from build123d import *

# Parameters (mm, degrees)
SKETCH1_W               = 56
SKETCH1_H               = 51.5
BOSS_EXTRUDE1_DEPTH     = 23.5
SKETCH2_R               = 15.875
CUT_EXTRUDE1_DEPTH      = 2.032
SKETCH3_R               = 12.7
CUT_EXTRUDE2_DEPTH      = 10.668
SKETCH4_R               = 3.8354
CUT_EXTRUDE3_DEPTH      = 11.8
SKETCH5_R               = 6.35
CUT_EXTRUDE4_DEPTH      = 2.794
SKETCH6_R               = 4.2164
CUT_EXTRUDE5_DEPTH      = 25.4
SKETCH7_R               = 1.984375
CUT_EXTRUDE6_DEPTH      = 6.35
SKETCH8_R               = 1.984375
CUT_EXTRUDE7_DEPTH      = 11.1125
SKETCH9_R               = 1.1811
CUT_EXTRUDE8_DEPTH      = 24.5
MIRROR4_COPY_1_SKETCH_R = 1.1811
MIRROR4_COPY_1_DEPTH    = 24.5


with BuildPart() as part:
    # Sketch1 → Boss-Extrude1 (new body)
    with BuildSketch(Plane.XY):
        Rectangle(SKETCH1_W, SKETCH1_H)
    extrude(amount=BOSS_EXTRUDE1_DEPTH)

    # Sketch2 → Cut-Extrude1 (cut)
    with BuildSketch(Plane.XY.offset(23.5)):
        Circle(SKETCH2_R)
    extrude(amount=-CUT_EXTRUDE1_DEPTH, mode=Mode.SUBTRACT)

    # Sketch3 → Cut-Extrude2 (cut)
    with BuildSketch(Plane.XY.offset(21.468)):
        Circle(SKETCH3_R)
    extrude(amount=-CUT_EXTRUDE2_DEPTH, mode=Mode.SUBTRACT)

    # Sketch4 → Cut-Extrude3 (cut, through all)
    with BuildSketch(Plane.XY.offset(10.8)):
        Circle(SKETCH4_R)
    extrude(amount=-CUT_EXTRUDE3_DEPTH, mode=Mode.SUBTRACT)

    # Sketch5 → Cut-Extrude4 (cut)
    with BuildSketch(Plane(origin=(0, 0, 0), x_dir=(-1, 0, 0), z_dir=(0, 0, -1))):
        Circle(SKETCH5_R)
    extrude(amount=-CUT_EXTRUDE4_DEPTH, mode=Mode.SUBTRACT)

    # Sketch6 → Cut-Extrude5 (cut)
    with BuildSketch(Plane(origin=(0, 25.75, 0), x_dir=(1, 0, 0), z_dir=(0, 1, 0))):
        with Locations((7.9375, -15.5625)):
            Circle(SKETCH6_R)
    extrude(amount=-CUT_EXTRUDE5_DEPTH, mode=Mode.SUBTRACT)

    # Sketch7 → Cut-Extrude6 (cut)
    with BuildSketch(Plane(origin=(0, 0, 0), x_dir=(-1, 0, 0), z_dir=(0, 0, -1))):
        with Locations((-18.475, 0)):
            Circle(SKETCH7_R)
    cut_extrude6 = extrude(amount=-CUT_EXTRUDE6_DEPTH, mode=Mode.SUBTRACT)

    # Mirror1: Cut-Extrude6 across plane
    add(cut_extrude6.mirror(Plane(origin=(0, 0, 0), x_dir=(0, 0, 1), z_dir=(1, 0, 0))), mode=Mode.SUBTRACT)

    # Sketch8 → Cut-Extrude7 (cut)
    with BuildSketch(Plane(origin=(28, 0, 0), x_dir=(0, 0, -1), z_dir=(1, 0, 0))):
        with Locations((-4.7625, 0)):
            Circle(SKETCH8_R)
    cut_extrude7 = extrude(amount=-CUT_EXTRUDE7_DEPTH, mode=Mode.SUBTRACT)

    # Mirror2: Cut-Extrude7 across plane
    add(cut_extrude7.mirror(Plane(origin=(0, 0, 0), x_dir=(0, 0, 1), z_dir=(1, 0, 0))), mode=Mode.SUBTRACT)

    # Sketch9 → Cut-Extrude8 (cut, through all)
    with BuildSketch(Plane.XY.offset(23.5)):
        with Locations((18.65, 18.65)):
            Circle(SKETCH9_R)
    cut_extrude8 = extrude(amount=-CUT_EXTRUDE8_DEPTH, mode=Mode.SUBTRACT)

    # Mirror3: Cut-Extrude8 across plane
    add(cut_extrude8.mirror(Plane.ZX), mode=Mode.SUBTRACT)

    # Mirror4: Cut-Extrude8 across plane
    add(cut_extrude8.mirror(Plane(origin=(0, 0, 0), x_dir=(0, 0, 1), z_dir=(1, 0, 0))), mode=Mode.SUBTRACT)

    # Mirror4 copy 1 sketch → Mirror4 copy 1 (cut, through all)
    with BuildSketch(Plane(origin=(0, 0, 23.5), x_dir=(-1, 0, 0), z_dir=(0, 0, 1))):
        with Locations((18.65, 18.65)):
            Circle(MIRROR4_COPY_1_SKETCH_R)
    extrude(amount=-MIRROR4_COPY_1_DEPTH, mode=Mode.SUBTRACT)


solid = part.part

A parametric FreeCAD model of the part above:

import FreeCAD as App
import Part
import Sketcher
from FreeCAD import Vector
Q = App.Units.Quantity

doc = App.newDocument("Part")
body = doc.addObject("PartDesign::Body", "Body")

# Sketch on XY plane
sketch1 = body.newObject("Sketcher::SketchObject", "Sketch")
sketch1.AttachmentSupport = (doc.getObject("XY_Plane"), [""])
sketch1.MapMode = "FlatFace"
sketch1.addGeometry([
    Part.LineSegment(Vector(-28, 26, 0), Vector(-28, -26, 0)),
    Part.LineSegment(Vector(-28, -26, 0), Vector(28, -26, 0)),
    Part.LineSegment(Vector(28, -26, 0), Vector(28, 26, 0)),
    Part.LineSegment(Vector(28, 26, 0), Vector(-28, 26, 0)),
], False)
sketch1.addConstraint([
    Sketcher.Constraint("Coincident", 0, 2, 1, 1),
    Sketcher.Constraint("Coincident", 1, 2, 2, 1),
    Sketcher.Constraint("Coincident", 2, 2, 3, 1),
    Sketcher.Constraint("Coincident", 3, 2, 0, 1),
    Sketcher.Constraint("Vertical", 0),
    Sketcher.Constraint("Horizontal", 1),
    Sketcher.Constraint("Vertical", 2),
    Sketcher.Constraint("Horizontal", 3),
    Sketcher.Constraint("Symmetric", 0, 2, 2, 2, -1, 1),
    Sketcher.Constraint("DistanceX", 1, 1, 1, 2, 56.0),
    Sketcher.Constraint("DistanceY", 0, 2, 0, 1, 51.5),
])
pad1 = body.newObject("PartDesign::Pad", "Pad")
pad1.Profile = sketch1
pad1.Length = 23.5

# Sketch on XY plane
sketch2 = body.newObject("Sketcher::SketchObject", "Sketch001")
sketch2.AttachmentSupport = (doc.getObject("XY_Plane"), [""])
sketch2.MapMode = "FlatFace"
sketch2.AttachmentOffset = App.Placement(Vector(0, 0, 23.5), App.Rotation())
sketch2.addGeometry(Part.Circle(Vector(0, 0, 0), Vector(0, 0, 1), 16), False)
sketch2.addConstraint([
    Sketcher.Constraint("Coincident", 0, 3, -1, 1),
    Sketcher.Constraint("Diameter", 0, Q("1.25 in")),
])
pocket1 = body.newObject("PartDesign::Pocket", "Pocket")
pocket1.Profile = sketch2
pocket1.Length = Q("0.08 in")

# Sketch on XY plane
sketch3 = body.newObject("Sketcher::SketchObject", "Sketch002")
sketch3.AttachmentSupport = (doc.getObject("XY_Plane"), [""])
sketch3.MapMode = "FlatFace"
sketch3.AttachmentOffset = App.Placement(Vector(0, 0, 21.468), App.Rotation())
sketch3.addGeometry(Part.Circle(Vector(0, 0, 0), Vector(0, 0, 1), 13), False)
sketch3.addConstraint([
    Sketcher.Constraint("Coincident", 0, 3, -1, 1),
    Sketcher.Constraint("Diameter", 0, Q("1 in")),
])
pocket2 = body.newObject("PartDesign::Pocket", "Pocket001")
pocket2.Profile = sketch3
pocket2.Length = Q("0.42 in")

# Sketch on XY plane
sketch4 = body.newObject("Sketcher::SketchObject", "Sketch003")
sketch4.AttachmentSupport = (doc.getObject("XY_Plane"), [""])
sketch4.MapMode = "FlatFace"
sketch4.AttachmentOffset = App.Placement(Vector(0, 0, 10.8), App.Rotation())
sketch4.addGeometry(Part.Circle(Vector(0, 0, 0), Vector(0, 0, 1), 3.8), False)
sketch4.addConstraint([
    Sketcher.Constraint("Coincident", 0, 3, -1, 1),
    Sketcher.Constraint("Diameter", 0, Q("0.302 in")),
])
pocket3 = body.newObject("PartDesign::Pocket", "Pocket002")
pocket3.Profile = sketch4
pocket3.Type = "ThroughAll"

# Sketch on XY plane
sketch5 = body.newObject("Sketcher::SketchObject", "Sketch004")
sketch5.AttachmentSupport = (doc.getObject("XY_Plane"), [""])
sketch5.MapMode = "FlatFace"
sketch5.addGeometry(Part.Circle(Vector(0, 0, 0), Vector(0, 0, 1), 6), False)
sketch5.addConstraint([
    Sketcher.Constraint("Coincident", 0, 3, -1, 1),
    Sketcher.Constraint("Diameter", 0, Q("0.5 in")),
])
pocket4 = body.newObject("PartDesign::Pocket", "Pocket003")
pocket4.Profile = sketch5
pocket4.Length = Q("0.11 in")
pocket4.Reversed = True

# Sketch on XZ plane
sketch6 = body.newObject("Sketcher::SketchObject", "Sketch005")
sketch6.AttachmentSupport = (doc.getObject("XZ_Plane"), [""])
sketch6.MapMode = "FlatFace"
sketch6.AttachmentOffset = App.Placement(Vector(0, 0, -25.75), App.Rotation())
sketch6.addGeometry(Part.Circle(Vector(7.9, 15.6, 0), Vector(0, 0, 1), 4.2), False)
sketch6.addConstraint([
    Sketcher.Constraint("Diameter", 0, Q("0.332 in")),
    Sketcher.Constraint("DistanceX", -1, 1, 0, 3, Q("0.3125 in")),
    Sketcher.Constraint("DistanceY", -1, 1, 0, 3, 15.5625),
])
pocket5 = body.newObject("PartDesign::Pocket", "Pocket004")
pocket5.Profile = sketch6
pocket5.Length = Q("1 in")
pocket5.Reversed = True

# Sketch on XY plane
sketch7 = body.newObject("Sketcher::SketchObject", "Sketch006")
sketch7.AttachmentSupport = (doc.getObject("XY_Plane"), [""])
sketch7.MapMode = "FlatFace"
sketch7.addGeometry(Part.Circle(Vector(18.5, 0, 0), Vector(0, 0, 1), 2), False)
sketch7.addConstraint([
    Sketcher.Constraint("PointOnObject", 0, 3, -1),
    Sketcher.Constraint("Diameter", 0, Q("0.15625 in")),
    Sketcher.Constraint("DistanceX", -1, 1, 0, 3, 18.475),
])
pocket6 = body.newObject("PartDesign::Pocket", "Pocket005")
pocket6.Profile = sketch7
pocket6.Length = Q("0.25 in")
pocket6.Reversed = True
doc.recompute()

mirrored = body.newObject("PartDesign::Mirrored", "Mirrored")
mirrored.Originals = [pocket6]
mirrored.MirrorPlane = (doc.getObject("YZ_Plane"), [""])
body.Tip = mirrored

# Sketch on YZ plane
sketch8 = body.newObject("Sketcher::SketchObject", "Sketch007")
sketch8.AttachmentSupport = (doc.getObject("YZ_Plane"), [""])
sketch8.MapMode = "FlatFace"
sketch8.AttachmentOffset = App.Placement(Vector(0, 0, 28), App.Rotation())
sketch8.addGeometry(Part.Circle(Vector(0, 4.8, 0), Vector(0, 0, 1), 2), False)
sketch8.addConstraint([
    Sketcher.Constraint("PointOnObject", 0, 3, -2),
    Sketcher.Constraint("Diameter", 0, Q("0.15625 in")),
    Sketcher.Constraint("DistanceY", -1, 1, 0, 3, Q("0.1875 in")),
])
pocket7 = body.newObject("PartDesign::Pocket", "Pocket006")
pocket7.Profile = sketch8
pocket7.Length = Q("0.4375 in")
doc.recompute()

mirrored2 = body.newObject("PartDesign::Mirrored", "Mirrored001")
mirrored2.Originals = [pocket7]
mirrored2.MirrorPlane = (doc.getObject("YZ_Plane"), [""])
body.Tip = mirrored2

# Sketch on XY plane
sketch9 = body.newObject("Sketcher::SketchObject", "Sketch008")
sketch9.AttachmentSupport = (doc.getObject("XY_Plane"), [""])
sketch9.MapMode = "FlatFace"
sketch9.AttachmentOffset = App.Placement(Vector(0, 0, 23.5), App.Rotation())
sketch9.addGeometry(Part.Circle(Vector(18.6, 18.6, 0), Vector(0, 0, 1), 1.2), False)
sketch9.addConstraint([
    Sketcher.Constraint("Diameter", 0, Q("0.093 in")),
    Sketcher.Constraint("DistanceX", -1, 1, 0, 3, 18.65),
    Sketcher.Constraint("DistanceY", -1, 1, 0, 3, 18.65),
])
pocket8 = body.newObject("PartDesign::Pocket", "Pocket007")
pocket8.Profile = sketch9
pocket8.Type = "ThroughAll"
doc.recompute()

mirrored3 = body.newObject("PartDesign::Mirrored", "Mirrored002")
mirrored3.Originals = [pocket8]
mirrored3.MirrorPlane = (doc.getObject("XZ_Plane"), [""])
body.Tip = mirrored3
doc.recompute()

mirrored4 = body.newObject("PartDesign::Mirrored", "Mirrored003")
mirrored4.Originals = [pocket8]
mirrored4.MirrorPlane = (doc.getObject("YZ_Plane"), [""])
body.Tip = mirrored4

# Sketch on XY plane
sketch10 = body.newObject("Sketcher::SketchObject", "Sketch009")
sketch10.AttachmentSupport = (doc.getObject("XY_Plane"), [""])
sketch10.MapMode = "FlatFace"
sketch10.AttachmentOffset = App.Placement(Vector(0, 0, 23.5), App.Rotation())
sketch10.addGeometry(Part.Circle(Vector(-18.6, -18.6, 0), Vector(0, 0, 1), 1.2), False)
sketch10.addConstraint([
    Sketcher.Constraint("Diameter", 0, Q("0.093 in")),
    Sketcher.Constraint("DistanceX", 0, 3, -1, 1, 18.65),
    Sketcher.Constraint("DistanceY", 0, 3, -1, 1, 18.65),
])
pocket9 = body.newObject("PartDesign::Pocket", "Pocket008")
pocket9.Profile = sketch10
pocket9.Type = "ThroughAll"

doc.recompute()
